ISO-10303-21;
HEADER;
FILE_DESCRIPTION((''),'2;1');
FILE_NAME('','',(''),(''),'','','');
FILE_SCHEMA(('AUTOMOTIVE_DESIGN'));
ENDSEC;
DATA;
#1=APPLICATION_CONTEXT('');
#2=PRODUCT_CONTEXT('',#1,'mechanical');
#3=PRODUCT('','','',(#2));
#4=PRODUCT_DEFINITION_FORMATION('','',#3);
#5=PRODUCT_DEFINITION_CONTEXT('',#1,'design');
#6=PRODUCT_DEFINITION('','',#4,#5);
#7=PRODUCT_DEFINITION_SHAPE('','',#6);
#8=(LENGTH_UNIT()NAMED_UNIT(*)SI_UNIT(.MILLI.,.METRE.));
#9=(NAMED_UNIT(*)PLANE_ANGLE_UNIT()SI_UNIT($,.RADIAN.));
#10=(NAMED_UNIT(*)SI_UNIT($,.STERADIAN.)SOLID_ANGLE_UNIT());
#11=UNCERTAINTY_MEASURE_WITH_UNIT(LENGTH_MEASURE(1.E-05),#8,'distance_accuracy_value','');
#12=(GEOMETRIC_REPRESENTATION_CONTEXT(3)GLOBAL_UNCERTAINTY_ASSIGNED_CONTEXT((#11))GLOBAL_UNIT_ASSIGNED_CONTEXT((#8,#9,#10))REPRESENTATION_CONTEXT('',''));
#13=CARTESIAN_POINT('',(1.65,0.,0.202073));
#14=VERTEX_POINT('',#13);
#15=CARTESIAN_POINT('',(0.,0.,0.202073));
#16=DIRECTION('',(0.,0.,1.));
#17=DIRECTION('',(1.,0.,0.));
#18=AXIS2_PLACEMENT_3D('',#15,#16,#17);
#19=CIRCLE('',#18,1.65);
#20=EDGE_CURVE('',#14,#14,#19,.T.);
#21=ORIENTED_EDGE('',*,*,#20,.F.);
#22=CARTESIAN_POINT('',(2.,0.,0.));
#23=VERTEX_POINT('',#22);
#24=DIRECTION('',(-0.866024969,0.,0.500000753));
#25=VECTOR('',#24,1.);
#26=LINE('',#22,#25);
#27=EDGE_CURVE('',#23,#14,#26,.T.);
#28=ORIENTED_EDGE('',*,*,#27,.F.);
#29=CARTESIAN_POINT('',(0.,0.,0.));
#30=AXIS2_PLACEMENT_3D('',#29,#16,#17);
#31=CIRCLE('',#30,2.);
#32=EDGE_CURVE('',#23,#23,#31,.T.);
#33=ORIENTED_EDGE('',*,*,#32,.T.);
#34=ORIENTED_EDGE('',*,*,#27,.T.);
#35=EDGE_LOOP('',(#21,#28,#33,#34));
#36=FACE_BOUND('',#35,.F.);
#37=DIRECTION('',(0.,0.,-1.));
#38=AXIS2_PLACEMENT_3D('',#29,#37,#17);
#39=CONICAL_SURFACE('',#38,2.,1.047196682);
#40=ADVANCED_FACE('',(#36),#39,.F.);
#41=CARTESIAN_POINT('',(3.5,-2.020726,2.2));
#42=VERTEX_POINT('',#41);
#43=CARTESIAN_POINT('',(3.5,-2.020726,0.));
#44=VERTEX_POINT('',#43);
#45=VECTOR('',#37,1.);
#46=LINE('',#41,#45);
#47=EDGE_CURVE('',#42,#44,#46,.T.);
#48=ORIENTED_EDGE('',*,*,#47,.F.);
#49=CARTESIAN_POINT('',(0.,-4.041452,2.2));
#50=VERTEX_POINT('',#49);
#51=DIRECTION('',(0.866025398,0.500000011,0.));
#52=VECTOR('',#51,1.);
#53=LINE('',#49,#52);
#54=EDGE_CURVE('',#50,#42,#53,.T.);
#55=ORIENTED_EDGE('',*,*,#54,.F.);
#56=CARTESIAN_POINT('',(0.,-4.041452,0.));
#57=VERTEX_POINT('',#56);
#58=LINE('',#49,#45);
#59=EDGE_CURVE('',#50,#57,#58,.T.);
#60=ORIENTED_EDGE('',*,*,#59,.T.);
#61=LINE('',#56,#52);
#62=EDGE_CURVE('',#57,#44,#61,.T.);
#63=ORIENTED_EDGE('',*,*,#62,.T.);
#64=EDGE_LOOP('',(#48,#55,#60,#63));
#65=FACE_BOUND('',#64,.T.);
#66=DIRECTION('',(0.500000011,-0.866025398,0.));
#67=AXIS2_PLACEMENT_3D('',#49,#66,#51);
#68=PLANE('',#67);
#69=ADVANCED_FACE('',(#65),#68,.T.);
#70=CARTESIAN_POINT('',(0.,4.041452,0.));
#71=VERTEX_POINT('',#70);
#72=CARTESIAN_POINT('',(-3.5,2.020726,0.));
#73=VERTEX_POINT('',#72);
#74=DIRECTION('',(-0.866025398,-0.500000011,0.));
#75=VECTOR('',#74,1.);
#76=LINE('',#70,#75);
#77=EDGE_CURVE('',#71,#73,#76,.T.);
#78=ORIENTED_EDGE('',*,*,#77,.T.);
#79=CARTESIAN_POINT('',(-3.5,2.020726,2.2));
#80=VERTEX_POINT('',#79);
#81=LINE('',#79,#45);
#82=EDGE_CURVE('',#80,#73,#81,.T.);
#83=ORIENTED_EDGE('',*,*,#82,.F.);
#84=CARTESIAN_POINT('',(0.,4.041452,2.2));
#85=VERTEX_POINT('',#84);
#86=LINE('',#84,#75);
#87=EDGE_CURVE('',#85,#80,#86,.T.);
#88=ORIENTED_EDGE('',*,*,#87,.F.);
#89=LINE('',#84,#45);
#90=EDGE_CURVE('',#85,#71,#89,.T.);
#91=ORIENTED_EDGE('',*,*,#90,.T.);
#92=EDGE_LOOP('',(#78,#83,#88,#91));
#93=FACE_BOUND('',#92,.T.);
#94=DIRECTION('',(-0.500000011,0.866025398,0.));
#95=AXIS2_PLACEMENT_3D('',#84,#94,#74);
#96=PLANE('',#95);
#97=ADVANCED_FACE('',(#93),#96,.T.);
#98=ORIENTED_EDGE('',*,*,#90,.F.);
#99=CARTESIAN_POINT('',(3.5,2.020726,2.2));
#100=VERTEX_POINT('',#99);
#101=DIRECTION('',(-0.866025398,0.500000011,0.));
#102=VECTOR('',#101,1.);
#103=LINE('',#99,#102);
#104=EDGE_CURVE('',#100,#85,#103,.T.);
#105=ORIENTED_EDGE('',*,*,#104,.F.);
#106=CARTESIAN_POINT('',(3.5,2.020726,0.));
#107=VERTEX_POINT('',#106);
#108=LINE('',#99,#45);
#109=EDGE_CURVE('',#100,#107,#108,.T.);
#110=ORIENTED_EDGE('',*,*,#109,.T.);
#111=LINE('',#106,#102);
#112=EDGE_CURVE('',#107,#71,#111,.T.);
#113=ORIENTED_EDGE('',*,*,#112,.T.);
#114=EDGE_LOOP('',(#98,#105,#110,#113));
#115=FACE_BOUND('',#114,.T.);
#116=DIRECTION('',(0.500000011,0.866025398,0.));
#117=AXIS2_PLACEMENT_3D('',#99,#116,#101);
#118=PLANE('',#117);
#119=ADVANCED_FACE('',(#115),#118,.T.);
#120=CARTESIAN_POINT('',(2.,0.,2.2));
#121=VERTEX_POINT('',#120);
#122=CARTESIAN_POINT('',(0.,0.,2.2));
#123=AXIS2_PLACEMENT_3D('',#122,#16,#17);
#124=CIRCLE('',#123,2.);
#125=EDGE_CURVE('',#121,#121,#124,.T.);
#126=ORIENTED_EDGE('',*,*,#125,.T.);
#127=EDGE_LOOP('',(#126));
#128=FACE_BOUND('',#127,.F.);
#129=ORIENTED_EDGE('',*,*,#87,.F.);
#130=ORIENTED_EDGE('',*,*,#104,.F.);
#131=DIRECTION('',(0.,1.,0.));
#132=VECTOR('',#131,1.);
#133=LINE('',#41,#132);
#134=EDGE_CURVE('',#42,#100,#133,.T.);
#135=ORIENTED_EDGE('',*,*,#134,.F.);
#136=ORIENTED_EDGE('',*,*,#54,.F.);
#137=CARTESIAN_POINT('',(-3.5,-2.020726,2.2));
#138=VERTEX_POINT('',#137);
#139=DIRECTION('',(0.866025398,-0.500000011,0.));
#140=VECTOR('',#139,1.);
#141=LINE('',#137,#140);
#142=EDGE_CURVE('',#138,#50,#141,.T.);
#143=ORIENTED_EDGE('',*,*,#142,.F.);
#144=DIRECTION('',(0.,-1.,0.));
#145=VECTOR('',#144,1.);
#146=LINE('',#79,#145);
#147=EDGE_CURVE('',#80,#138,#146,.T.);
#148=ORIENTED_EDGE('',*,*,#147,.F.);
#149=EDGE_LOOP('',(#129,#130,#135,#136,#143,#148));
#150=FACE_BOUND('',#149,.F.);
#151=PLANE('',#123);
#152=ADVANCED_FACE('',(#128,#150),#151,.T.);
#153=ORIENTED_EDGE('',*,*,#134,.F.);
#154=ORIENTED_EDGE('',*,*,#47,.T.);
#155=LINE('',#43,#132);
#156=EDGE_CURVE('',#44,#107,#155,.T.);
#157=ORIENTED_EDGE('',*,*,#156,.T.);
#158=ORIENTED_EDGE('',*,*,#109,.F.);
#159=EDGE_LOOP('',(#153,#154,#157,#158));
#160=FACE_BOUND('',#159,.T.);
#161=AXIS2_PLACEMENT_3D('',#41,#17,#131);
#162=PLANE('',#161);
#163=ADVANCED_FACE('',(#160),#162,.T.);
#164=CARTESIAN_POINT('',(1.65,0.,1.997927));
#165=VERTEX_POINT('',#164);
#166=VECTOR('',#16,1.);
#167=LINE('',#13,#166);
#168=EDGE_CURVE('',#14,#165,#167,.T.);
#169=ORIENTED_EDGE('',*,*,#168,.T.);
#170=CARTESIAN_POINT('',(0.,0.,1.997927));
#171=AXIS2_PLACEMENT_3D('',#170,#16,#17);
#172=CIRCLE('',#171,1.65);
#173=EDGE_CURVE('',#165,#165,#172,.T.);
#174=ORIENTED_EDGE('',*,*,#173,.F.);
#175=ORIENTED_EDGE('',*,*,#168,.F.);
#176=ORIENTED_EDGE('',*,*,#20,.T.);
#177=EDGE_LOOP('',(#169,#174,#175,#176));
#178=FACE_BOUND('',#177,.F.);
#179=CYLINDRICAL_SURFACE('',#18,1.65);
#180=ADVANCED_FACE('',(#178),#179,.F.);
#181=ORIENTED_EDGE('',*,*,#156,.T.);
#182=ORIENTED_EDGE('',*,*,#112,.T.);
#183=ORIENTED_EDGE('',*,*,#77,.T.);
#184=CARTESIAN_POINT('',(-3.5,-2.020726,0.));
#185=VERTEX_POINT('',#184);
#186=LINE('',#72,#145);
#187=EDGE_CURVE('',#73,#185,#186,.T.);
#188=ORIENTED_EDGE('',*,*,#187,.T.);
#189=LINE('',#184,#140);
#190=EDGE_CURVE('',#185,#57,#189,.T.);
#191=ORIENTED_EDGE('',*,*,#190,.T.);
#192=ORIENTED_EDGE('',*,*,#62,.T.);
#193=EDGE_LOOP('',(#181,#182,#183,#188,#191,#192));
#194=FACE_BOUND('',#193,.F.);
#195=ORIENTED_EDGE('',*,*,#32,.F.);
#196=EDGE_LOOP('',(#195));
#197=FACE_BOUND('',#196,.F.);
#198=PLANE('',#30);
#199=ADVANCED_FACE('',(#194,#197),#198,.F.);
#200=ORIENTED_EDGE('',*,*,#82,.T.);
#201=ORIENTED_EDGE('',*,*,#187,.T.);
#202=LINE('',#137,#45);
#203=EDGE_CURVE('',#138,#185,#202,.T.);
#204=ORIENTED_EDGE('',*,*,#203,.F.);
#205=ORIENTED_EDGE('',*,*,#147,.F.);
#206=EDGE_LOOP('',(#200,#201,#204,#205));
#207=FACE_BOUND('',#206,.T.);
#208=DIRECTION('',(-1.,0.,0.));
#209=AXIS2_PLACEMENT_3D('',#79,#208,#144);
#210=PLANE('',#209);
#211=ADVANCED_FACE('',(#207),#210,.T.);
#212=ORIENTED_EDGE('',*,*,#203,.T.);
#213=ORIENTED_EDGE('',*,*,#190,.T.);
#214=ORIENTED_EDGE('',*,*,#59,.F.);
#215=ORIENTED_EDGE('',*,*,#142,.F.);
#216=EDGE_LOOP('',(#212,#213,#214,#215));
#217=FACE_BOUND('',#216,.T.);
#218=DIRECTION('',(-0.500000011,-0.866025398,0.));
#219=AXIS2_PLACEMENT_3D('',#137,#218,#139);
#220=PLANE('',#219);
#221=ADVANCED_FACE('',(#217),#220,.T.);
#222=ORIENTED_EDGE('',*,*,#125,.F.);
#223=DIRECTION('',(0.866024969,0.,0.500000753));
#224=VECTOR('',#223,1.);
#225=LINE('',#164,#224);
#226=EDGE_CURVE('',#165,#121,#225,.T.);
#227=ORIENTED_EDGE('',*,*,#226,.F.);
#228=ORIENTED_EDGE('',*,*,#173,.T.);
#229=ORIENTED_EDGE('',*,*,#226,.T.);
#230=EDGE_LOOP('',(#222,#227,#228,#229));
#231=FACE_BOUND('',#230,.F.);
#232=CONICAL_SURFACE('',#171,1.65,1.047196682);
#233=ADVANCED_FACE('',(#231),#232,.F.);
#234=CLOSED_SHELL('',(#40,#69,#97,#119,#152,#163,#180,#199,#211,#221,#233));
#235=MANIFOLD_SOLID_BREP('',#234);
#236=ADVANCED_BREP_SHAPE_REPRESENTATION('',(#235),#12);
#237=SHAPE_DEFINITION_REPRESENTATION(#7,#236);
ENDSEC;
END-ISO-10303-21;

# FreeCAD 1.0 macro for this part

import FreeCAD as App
import Part
import Sketcher
from FreeCAD import Vector
Q = App.Units.Quantity

doc = App.newDocument("Part")
params = doc.addObject("Spreadsheet::Sheet", "Params")
for row, (alias, value) in enumerate([
    ("sketch1_width", "2.5 mm"),
    ("sketch1_height", "2.2 mm"),
    ("revolution_angle", "360 deg"),
    ("sketch2_diameter", "9 mm"),
    ("pocket1_length", "2.2 mm"),
], start=1):
    params.set(f"A{row}", alias)
    params.set(f"B{row}", "=" + value)
    params.setAlias(f"B{row}", alias)

body = doc.addObject("PartDesign::Body", "Body")

# Sketch on XZ plane
sketch1 = body.newObject("Sketcher::SketchObject", "Sketch")
sketch1.AttachmentSupport = (doc.getObject("XZ_Plane"), [""])
sketch1.MapMode = "FlatFace"
sketch1.addGeometry([
    Part.LineSegment(Vector(1.65, 0.202073, 0), Vector(2, 0, 0)),  # 0
    Part.LineSegment(Vector(2, 0, 0), Vector(4.5, 0, 0)),  # 1
    Part.LineSegment(Vector(4.5, 0, 0), Vector(4.5, 2.2, 0)),  # 2
    Part.LineSegment(Vector(4.5, 2.2, 0), Vector(2, 2.2, 0)),  # 3
    Part.LineSegment(Vector(2, 2.2, 0), Vector(1.65, 1.997927, 0)),  # 4
    Part.LineSegment(Vector(1.65, 1.997927, 0), Vector(1.65, 0.202073, 0)),  # 5
], False)
sketch1.addConstraint([
    Sketcher.Constraint("Coincident", 0, 2, 1, 1),
    Sketcher.Constraint("Coincident", 1, 2, 2, 1),
    Sketcher.Constraint("Coincident", 2, 2, 3, 1),
    Sketcher.Constraint("Coincident", 3, 2, 4, 1),
    Sketcher.Constraint("Coincident", 4, 2, 5, 1),
    Sketcher.Constraint("Coincident", 5, 2, 0, 1),
    Sketcher.Constraint("Horizontal", 1),
    Sketcher.Constraint("Vertical", 2),
    Sketcher.Constraint("Horizontal", 3),
    Sketcher.Constraint("Vertical", 5),
    Sketcher.Constraint("PointOnObject", 0, 2, -1),
    Sketcher.Constraint("Vertical", 0, 2, 3, 2),
    Sketcher.Constraint("Equal", 0, 4),
    Sketcher.Constraint("DistanceX", 1, 1, 1, 2, 2.5),
    Sketcher.Constraint("DistanceY", 2, 1, 2, 2, 2.2),
    Sketcher.Constraint("DistanceX", -1, 1, 0, 2, 2.0),
    Sketcher.Constraint("DistanceX", -1, 1, 4, 2, 1.65),
    Sketcher.Constraint("DistanceY", 5, 2, 5, 1, 1.795854),
])
sketch1.setExpression("Constraints[13]", "Params.sketch1_width")
sketch1.setExpression("Constraints[14]", "Params.sketch1_height")
revolution = body.newObject("PartDesign::Revolution", "Revolution")
revolution.Profile = sketch1
revolution.ReferenceAxis = (sketch1, ["V_Axis"])
revolution.setExpression("Angle", "Params.revolution_angle")

# Sketch on XY plane
sketch2 = body.newObject("Sketcher::SketchObject", "Sketch001")
sketch2.AttachmentSupport = (doc.getObject("XY_Plane"), [""])
sketch2.MapMode = "FlatFace"
sketch2.AttachmentOffset = App.Placement(Vector(0, 0, 2.2), App.Rotation())
sketch2.addGeometry([
    Part.Circle(Vector(0, 0, 0), Vector(0, 0, 1), 4.5),  # 0
    Part.LineSegment(Vector(3.5, 2.020726, 0), Vector(3.5, -2.020726, 0)),  # 1
    Part.LineSegment(Vector(3.5, -2.020726, 0), Vector(0, -4.041452, 0)),  # 2
    Part.LineSegment(Vector(0, -4.041452, 0), Vector(-3.5, -2.020726, 0)),  # 3
    Part.LineSegment(Vector(-3.5, -2.020726, 0), Vector(-3.5, 2.020726, 0)),  # 4
    Part.LineSegment(Vector(-3.5, 2.020726, 0), Vector(0, 4.041452, 0)),  # 5
    Part.LineSegment(Vector(0, 4.041452, 0), Vector(3.5, 2.020726, 0)),  # 6
], False)
sketch2.addConstraint([
    Sketcher.Constraint("Coincident", 1, 2, 2, 1),
    Sketcher.Constraint("Coincident", 2, 2, 3, 1),
    Sketcher.Constraint("Coincident", 3, 2, 4, 1),
    Sketcher.Constraint("Coincident", 4, 2, 5, 1),
    Sketcher.Constraint("Coincident", 5, 2, 6, 1),
    Sketcher.Constraint("Coincident", 6, 2, 1, 1),
    Sketcher.Constraint("Vertical", 1),
    Sketcher.Constraint("Vertical", 4),
    Sketcher.Constraint("Coincident", 0, 3, -1, 1),
    Sketcher.Constraint("Symmetric", 1, 2, 4, 2, -1, 1),
    Sketcher.Constraint("Symmetric", 2, 2, 5, 2, -1, 1),
    Sketcher.Constraint("PointOnObject", 2, 2, -2),
    Sketcher.Constraint("Parallel", 3, 6),
    Sketcher.Constraint("Horizontal", 1, 2, 3, 2),
    Sketcher.Constraint("Diameter", 0, 9.0),
    Sketcher.Constraint("Angle", 2, Q("-149.999999 deg")),
    Sketcher.Constraint("DistanceX", 3, 2, 1, 2, 7.0),
    Sketcher.Constraint("DistanceY", 1, 2, 1, 1, 4.041452),
])
sketch2.setExpression("Constraints[14]", "Params.sketch2_diameter")
pocket1 = body.newObject("PartDesign::Pocket", "Pocket")
pocket1.Profile = sketch2
pocket1.setExpression("Length", "Params.pocket1_length")

doc.recompute()
